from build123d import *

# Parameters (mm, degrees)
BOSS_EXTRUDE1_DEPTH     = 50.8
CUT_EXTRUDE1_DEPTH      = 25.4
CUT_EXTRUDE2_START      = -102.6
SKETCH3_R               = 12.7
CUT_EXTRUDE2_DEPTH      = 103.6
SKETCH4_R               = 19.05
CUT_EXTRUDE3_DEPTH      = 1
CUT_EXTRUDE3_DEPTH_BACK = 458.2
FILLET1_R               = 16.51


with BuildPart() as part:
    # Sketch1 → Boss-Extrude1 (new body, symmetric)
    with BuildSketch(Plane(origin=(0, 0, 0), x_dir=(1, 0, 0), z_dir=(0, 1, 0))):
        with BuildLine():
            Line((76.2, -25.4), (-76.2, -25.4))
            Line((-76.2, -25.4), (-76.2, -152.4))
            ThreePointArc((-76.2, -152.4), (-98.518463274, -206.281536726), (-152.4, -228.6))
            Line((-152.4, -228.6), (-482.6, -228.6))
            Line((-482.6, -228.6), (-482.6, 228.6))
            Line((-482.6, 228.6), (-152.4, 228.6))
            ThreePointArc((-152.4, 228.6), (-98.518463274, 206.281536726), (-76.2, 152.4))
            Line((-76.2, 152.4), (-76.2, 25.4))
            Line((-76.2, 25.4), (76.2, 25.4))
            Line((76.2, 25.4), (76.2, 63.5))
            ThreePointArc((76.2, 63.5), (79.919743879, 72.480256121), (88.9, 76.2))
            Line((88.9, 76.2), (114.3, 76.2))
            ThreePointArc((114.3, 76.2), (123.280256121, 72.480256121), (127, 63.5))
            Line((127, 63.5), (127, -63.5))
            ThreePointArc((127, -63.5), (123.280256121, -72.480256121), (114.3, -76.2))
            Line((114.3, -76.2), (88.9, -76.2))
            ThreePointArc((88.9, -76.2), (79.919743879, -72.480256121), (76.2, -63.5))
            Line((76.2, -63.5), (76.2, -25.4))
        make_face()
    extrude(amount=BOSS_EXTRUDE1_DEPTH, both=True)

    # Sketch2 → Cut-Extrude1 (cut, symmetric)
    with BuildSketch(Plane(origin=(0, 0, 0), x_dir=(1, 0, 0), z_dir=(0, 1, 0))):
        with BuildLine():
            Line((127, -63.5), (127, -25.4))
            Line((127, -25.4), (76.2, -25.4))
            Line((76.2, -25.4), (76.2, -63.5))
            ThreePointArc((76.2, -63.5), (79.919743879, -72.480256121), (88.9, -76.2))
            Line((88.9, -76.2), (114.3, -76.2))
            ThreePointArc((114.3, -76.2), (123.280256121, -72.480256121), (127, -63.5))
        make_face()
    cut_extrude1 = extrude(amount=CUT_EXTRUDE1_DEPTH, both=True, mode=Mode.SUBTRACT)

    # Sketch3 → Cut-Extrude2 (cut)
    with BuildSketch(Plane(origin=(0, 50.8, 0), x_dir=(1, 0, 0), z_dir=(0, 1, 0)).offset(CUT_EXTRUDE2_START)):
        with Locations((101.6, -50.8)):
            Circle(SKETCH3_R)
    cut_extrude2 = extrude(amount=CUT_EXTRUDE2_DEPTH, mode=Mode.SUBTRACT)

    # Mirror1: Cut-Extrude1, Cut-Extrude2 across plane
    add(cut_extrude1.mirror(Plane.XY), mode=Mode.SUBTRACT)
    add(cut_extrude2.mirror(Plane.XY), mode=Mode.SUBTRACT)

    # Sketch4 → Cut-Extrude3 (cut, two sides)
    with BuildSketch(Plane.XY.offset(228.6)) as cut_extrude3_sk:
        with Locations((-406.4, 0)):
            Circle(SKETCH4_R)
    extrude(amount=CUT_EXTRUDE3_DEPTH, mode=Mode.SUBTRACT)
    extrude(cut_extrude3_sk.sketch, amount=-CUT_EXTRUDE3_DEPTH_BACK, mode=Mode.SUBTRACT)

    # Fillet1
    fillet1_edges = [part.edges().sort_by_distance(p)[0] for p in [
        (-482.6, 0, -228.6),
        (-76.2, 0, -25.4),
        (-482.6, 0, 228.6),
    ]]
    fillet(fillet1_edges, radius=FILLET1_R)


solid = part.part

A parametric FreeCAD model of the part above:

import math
import FreeCAD as App
import Part
import Sketcher

V = App.Vector
Q = App.Units.Quantity


def edges_at(feature, points):
    """Names of the edges that pass closest to the given points."""
    edges = feature.Shape.Edges
    near = lambda p: min(range(len(edges)), key=lambda i: edges[i].distToShape(Part.Vertex(*p))[0])
    return sorted({f"Edge{near(p) + 1}" for p in points})

doc = App.newDocument("Part")
body = doc.addObject("PartDesign::Body", "Body")

# Sketch on XZ plane
sketch1 = body.newObject("Sketcher::SketchObject", "Sketch")
sketch1.AttachmentSupport = (doc.getObject("XZ_Plane"), [""])
sketch1.MapMode = "FlatFace"
sketch1.addGeometry([
    Part.LineSegment(V(-76.2, 25.4, 0), V(76.2, 25.4, 0)),  # 0
    Part.LineSegment(V(76.2, 25.4, 0), V(76.2, 63.5, 0)),  # 1
    Part.ArcOfCircle(Part.Circle(V(88.9, 63.5, 0), V(0, 0, 1), 12.7), math.radians(90), math.radians(180)),  # 2
    Part.LineSegment(V(88.9, 76.2, 0), V(114.3, 76.2, 0)),  # 3
    Part.ArcOfCircle(Part.Circle(V(114.3, 63.5, 0), V(0, 0, 1), 12.7), math.radians(0), math.radians(90)),  # 4
    Part.LineSegment(V(127, 63.5, 0), V(127, -63.5, 0)),  # 5
    Part.ArcOfCircle(Part.Circle(V(114.3, -63.5, 0), V(0, 0, 1), 12.7), math.radians(-90), math.radians(0)),  # 6
    Part.LineSegment(V(114.3, -76.2, 0), V(88.9, -76.2, 0)),  # 7
    Part.ArcOfCircle(Part.Circle(V(88.9, -63.5, 0), V(0, 0, 1), 12.7), math.radians(180), math.radians(270)),  # 8
    Part.LineSegment(V(76.2, -63.5, 0), V(76.2, -25.4, 0)),  # 9
    Part.LineSegment(V(76.2, -25.4, 0), V(-76.2, -25.4, 0)),  # 10
    Part.LineSegment(V(-76.2, -25.4, 0), V(-76.2, -152.4, 0)),  # 11
    Part.ArcOfCircle(Part.Circle(V(-152.4, -152.4, 0), V(0, 0, 1), 76.2), math.radians(-90), math.radians(0)),  # 12
    Part.LineSegment(V(-152.4, -228.6, 0), V(-482.6, -228.6, 0)),  # 13
    Part.LineSegment(V(-482.6, -228.6, 0), V(-482.6, 228.6, 0)),  # 14
    Part.LineSegment(V(-482.6, 228.6, 0), V(-152.4, 228.6, 0)),  # 15
    Part.ArcOfCircle(Part.Circle(V(-152.4, 152.4, 0), V(0, 0, 1), 76.2), math.radians(0), math.radians(90)),  # 16
    Part.LineSegment(V(-76.2, 152.4, 0), V(-76.2, 25.4, 0)),  # 17
], False)
sketch1.addConstraint([
    Sketcher.Constraint("Coincident", 0, 2, 1, 1),
    Sketcher.Constraint("Tangent", 1, 2, 2, 2),
    Sketcher.Constraint("Tangent", 2, 1, 3, 1),
    Sketcher.Constraint("Tangent", 3, 2, 4, 2),
    Sketcher.Constraint("Tangent", 4, 1, 5, 1),
    Sketcher.Constraint("Tangent", 5, 2, 6, 2),
    Sketcher.Constraint("Tangent", 6, 1, 7, 1),
    Sketcher.Constraint("Tangent", 7, 2, 8, 2),
    Sketcher.Constraint("Tangent", 8, 1, 9, 1),
    Sketcher.Constraint("Coincident", 9, 2, 10, 1),
    Sketcher.Constraint("Coincident", 10, 2, 11, 1),
    Sketcher.Constraint("Tangent", 11, 2, 12, 2),
    Sketcher.Constraint("Tangent", 12, 1, 13, 1),
    Sketcher.Constraint("Coincident", 13, 2, 14, 1),
    Sketcher.Constraint("Coincident", 14, 2, 15, 1),
    Sketcher.Constraint("Tangent", 15, 2, 16, 2),
    Sketcher.Constraint("Tangent", 16, 1, 17, 1),
    Sketcher.Constraint("Coincident", 17, 2, 0, 1),
    Sketcher.Constraint("Horizontal", 0),
    Sketcher.Constraint("Vertical", 1),
    Sketcher.Constraint("Horizontal", 3),
    Sketcher.Constraint("Vertical", 5),
    Sketcher.Constraint("Horizontal", 7),
    Sketcher.Constraint("Vertical", 9),
    Sketcher.Constraint("Horizontal", 10),
    Sketcher.Constraint("Vertical", 11),
    Sketcher.Constraint("Horizontal", 13),
    Sketcher.Constraint("Vertical", 14),
    Sketcher.Constraint("Horizontal", 15),
    Sketcher.Constraint("Vertical", 17),
    Sketcher.Constraint("Equal", 2, 4),
    Sketcher.Constraint("Equal", 4, 6),
    Sketcher.Constraint("Equal", 6, 8),
    Sketcher.Constraint("Equal", 12, 16),
    Sketcher.Constraint("Symmetric", 0, 2, 10, 2, -1, 1),
    Sketcher.Constraint("Symmetric", 2, 3, 8, 3, -1),
    Sketcher.Constraint("Symmetric", 12, 3, 16, 3, -1),
    Sketcher.Constraint("Equal", 5, 11),
    Sketcher.Constraint("Radius", 12, Q("3 in")),
    Sketcher.Constraint("Radius", 2, Q("0.5 in")),
    Sketcher.Constraint("DistanceX", 0, 1, 0, 2, Q("6 in")),
    Sketcher.Constraint("DistanceX", 3, 1, 3, 2, Q("1 in")),
    Sketcher.Constraint("DistanceX", 13, 2, 13, 1, Q("13 in")),
    Sketcher.Constraint("DistanceY", 5, 2, 5, 1, Q("5 in")),
    Sketcher.Constraint("DistanceY", 14, 1, 14, 2, Q("18 in")),
])
pad1 = body.newObject("PartDesign::Pad", "Pad")
pad1.Profile = sketch1
pad1.Length = Q("4 in")
pad1.Midplane = True

# Sketch on XZ plane
sketch2 = body.newObject("Sketcher::SketchObject", "Sketch001")
sketch2.AttachmentSupport = (doc.getObject("XZ_Plane"), [""])
sketch2.MapMode = "FlatFace"
sketch2.addGeometry([
    Part.LineSegment(V(127, 63.5, 0), V(127, 25.4, 0)),  # 0
    Part.LineSegment(V(127, 25.4, 0), V(76.2, 25.4, 0)),  # 1
    Part.LineSegment(V(76.2, 25.4, 0), V(76.2, 63.5, 0)),  # 2
    Part.ArcOfCircle(Part.Circle(V(88.9, 63.5, 0), V(0, 0, 1), 12.7), math.radians(90), math.radians(180)),  # 3
    Part.LineSegment(V(88.9, 76.2, 0), V(114.3, 76.2, 0)),  # 4
    Part.ArcOfCircle(Part.Circle(V(114.3, 63.5, 0), V(0, 0, 1), 12.7), math.radians(0), math.radians(90)),  # 5
], False)
sketch2.addConstraint([
    Sketcher.Constraint("Coincident", 0, 2, 1, 1),
    Sketcher.Constraint("Coincident", 1, 2, 2, 1),
    Sketcher.Constraint("Tangent", 2, 2, 3, 2),
    Sketcher.Constraint("Tangent", 3, 1, 4, 1),
    Sketcher.Constraint("Tangent", 4, 2, 5, 2),
    Sketcher.Constraint("Tangent", 5, 1, 0, 1),
    Sketcher.Constraint("Vertical", 0),
    Sketcher.Constraint("Horizontal", 1),
    Sketcher.Constraint("Vertical", 2),
    Sketcher.Constraint("Horizontal", 4),
    Sketcher.Constraint("Equal", 3, 5),
    Sketcher.Constraint("Radius", 3, Q("0.5 in")),
    Sketcher.Constraint("DistanceX", 1, 2, 1, 1, Q("2 in")),
    Sketcher.Constraint("DistanceY", 0, 2, 0, 1, Q("1.5 in")),
    Sketcher.Constraint("DistanceX", -1, 1, 0, 2, Q("5 in")),
    Sketcher.Constraint("DistanceY", -1, 1, 0, 2, Q("1 in")),
])
pocket1 = body.newObject("PartDesign::Pocket", "Pocket")
pocket1.Profile = sketch2
pocket1.Length = Q("2 in")
pocket1.Midplane = True

# Sketch on XZ plane
sketch3 = body.newObject("Sketcher::SketchObject", "Sketch002")
sketch3.AttachmentSupport = (doc.getObject("XZ_Plane"), [""])
sketch3.MapMode = "FlatFace"
sketch3.AttachmentOffset = App.Placement(V(0, 0, 51.8), App.Rotation())
sketch3.addGeometry(Part.Circle(V(101.6, 50.8, 0), V(0, 0, 1), 12.7), False)
sketch3.addConstraint([
    Sketcher.Constraint("Diameter", 0, Q("1 in")),
    Sketcher.Constraint("DistanceX", -1, 1, 0, 3, Q("4 in")),
    Sketcher.Constraint("DistanceY", -1, 1, 0, 3, Q("2 in")),
])
pocket2 = body.newObject("PartDesign::Pocket", "Pocket001")
pocket2.Profile = sketch3
pocket2.Length = 103.6
doc.recompute()

mirrored = body.newObject("PartDesign::Mirrored", "Mirrored")
mirrored.Originals = [pocket1, pocket2]
mirrored.MirrorPlane = (doc.getObject("XY_Plane"), [""])
body.Tip = mirrored

# Sketch on XY plane
sketch4 = body.newObject("Sketcher::SketchObject", "Sketch003")
sketch4.AttachmentSupport = (doc.getObject("XY_Plane"), [""])
sketch4.MapMode = "FlatFace"
sketch4.AttachmentOffset = App.Placement(V(0, 0, 9 * 25.4), App.Rotation())
sketch4.addGeometry(Part.Circle(V(-406.4, 0, 0), V(0, 0, 1), 19.05), False)
sketch4.addConstraint([
    Sketcher.Constraint("PointOnObject", 0, 3, -1),
    Sketcher.Constraint("Diameter", 0, Q("1.5 in")),
    Sketcher.Constraint("DistanceX", 0, 3, -1, 1, Q("16 in")),
])
pocket3 = body.newObject("PartDesign::Pocket", "Pocket002")
pocket3.Profile = sketch4
pocket3.Type = "ThroughAll"
pocket3.Midplane = True
doc.recompute()

fillet = body.newObject("PartDesign::Fillet", "Fillet")
fillet.Base = (pocket3, edges_at(pocket3, [(-482.6, 0, -228.6), (-76.2, 0, -25.4), (-482.6, 0, 228.6)]))
fillet.Radius = Q("0.65 in")

doc.recompute()
